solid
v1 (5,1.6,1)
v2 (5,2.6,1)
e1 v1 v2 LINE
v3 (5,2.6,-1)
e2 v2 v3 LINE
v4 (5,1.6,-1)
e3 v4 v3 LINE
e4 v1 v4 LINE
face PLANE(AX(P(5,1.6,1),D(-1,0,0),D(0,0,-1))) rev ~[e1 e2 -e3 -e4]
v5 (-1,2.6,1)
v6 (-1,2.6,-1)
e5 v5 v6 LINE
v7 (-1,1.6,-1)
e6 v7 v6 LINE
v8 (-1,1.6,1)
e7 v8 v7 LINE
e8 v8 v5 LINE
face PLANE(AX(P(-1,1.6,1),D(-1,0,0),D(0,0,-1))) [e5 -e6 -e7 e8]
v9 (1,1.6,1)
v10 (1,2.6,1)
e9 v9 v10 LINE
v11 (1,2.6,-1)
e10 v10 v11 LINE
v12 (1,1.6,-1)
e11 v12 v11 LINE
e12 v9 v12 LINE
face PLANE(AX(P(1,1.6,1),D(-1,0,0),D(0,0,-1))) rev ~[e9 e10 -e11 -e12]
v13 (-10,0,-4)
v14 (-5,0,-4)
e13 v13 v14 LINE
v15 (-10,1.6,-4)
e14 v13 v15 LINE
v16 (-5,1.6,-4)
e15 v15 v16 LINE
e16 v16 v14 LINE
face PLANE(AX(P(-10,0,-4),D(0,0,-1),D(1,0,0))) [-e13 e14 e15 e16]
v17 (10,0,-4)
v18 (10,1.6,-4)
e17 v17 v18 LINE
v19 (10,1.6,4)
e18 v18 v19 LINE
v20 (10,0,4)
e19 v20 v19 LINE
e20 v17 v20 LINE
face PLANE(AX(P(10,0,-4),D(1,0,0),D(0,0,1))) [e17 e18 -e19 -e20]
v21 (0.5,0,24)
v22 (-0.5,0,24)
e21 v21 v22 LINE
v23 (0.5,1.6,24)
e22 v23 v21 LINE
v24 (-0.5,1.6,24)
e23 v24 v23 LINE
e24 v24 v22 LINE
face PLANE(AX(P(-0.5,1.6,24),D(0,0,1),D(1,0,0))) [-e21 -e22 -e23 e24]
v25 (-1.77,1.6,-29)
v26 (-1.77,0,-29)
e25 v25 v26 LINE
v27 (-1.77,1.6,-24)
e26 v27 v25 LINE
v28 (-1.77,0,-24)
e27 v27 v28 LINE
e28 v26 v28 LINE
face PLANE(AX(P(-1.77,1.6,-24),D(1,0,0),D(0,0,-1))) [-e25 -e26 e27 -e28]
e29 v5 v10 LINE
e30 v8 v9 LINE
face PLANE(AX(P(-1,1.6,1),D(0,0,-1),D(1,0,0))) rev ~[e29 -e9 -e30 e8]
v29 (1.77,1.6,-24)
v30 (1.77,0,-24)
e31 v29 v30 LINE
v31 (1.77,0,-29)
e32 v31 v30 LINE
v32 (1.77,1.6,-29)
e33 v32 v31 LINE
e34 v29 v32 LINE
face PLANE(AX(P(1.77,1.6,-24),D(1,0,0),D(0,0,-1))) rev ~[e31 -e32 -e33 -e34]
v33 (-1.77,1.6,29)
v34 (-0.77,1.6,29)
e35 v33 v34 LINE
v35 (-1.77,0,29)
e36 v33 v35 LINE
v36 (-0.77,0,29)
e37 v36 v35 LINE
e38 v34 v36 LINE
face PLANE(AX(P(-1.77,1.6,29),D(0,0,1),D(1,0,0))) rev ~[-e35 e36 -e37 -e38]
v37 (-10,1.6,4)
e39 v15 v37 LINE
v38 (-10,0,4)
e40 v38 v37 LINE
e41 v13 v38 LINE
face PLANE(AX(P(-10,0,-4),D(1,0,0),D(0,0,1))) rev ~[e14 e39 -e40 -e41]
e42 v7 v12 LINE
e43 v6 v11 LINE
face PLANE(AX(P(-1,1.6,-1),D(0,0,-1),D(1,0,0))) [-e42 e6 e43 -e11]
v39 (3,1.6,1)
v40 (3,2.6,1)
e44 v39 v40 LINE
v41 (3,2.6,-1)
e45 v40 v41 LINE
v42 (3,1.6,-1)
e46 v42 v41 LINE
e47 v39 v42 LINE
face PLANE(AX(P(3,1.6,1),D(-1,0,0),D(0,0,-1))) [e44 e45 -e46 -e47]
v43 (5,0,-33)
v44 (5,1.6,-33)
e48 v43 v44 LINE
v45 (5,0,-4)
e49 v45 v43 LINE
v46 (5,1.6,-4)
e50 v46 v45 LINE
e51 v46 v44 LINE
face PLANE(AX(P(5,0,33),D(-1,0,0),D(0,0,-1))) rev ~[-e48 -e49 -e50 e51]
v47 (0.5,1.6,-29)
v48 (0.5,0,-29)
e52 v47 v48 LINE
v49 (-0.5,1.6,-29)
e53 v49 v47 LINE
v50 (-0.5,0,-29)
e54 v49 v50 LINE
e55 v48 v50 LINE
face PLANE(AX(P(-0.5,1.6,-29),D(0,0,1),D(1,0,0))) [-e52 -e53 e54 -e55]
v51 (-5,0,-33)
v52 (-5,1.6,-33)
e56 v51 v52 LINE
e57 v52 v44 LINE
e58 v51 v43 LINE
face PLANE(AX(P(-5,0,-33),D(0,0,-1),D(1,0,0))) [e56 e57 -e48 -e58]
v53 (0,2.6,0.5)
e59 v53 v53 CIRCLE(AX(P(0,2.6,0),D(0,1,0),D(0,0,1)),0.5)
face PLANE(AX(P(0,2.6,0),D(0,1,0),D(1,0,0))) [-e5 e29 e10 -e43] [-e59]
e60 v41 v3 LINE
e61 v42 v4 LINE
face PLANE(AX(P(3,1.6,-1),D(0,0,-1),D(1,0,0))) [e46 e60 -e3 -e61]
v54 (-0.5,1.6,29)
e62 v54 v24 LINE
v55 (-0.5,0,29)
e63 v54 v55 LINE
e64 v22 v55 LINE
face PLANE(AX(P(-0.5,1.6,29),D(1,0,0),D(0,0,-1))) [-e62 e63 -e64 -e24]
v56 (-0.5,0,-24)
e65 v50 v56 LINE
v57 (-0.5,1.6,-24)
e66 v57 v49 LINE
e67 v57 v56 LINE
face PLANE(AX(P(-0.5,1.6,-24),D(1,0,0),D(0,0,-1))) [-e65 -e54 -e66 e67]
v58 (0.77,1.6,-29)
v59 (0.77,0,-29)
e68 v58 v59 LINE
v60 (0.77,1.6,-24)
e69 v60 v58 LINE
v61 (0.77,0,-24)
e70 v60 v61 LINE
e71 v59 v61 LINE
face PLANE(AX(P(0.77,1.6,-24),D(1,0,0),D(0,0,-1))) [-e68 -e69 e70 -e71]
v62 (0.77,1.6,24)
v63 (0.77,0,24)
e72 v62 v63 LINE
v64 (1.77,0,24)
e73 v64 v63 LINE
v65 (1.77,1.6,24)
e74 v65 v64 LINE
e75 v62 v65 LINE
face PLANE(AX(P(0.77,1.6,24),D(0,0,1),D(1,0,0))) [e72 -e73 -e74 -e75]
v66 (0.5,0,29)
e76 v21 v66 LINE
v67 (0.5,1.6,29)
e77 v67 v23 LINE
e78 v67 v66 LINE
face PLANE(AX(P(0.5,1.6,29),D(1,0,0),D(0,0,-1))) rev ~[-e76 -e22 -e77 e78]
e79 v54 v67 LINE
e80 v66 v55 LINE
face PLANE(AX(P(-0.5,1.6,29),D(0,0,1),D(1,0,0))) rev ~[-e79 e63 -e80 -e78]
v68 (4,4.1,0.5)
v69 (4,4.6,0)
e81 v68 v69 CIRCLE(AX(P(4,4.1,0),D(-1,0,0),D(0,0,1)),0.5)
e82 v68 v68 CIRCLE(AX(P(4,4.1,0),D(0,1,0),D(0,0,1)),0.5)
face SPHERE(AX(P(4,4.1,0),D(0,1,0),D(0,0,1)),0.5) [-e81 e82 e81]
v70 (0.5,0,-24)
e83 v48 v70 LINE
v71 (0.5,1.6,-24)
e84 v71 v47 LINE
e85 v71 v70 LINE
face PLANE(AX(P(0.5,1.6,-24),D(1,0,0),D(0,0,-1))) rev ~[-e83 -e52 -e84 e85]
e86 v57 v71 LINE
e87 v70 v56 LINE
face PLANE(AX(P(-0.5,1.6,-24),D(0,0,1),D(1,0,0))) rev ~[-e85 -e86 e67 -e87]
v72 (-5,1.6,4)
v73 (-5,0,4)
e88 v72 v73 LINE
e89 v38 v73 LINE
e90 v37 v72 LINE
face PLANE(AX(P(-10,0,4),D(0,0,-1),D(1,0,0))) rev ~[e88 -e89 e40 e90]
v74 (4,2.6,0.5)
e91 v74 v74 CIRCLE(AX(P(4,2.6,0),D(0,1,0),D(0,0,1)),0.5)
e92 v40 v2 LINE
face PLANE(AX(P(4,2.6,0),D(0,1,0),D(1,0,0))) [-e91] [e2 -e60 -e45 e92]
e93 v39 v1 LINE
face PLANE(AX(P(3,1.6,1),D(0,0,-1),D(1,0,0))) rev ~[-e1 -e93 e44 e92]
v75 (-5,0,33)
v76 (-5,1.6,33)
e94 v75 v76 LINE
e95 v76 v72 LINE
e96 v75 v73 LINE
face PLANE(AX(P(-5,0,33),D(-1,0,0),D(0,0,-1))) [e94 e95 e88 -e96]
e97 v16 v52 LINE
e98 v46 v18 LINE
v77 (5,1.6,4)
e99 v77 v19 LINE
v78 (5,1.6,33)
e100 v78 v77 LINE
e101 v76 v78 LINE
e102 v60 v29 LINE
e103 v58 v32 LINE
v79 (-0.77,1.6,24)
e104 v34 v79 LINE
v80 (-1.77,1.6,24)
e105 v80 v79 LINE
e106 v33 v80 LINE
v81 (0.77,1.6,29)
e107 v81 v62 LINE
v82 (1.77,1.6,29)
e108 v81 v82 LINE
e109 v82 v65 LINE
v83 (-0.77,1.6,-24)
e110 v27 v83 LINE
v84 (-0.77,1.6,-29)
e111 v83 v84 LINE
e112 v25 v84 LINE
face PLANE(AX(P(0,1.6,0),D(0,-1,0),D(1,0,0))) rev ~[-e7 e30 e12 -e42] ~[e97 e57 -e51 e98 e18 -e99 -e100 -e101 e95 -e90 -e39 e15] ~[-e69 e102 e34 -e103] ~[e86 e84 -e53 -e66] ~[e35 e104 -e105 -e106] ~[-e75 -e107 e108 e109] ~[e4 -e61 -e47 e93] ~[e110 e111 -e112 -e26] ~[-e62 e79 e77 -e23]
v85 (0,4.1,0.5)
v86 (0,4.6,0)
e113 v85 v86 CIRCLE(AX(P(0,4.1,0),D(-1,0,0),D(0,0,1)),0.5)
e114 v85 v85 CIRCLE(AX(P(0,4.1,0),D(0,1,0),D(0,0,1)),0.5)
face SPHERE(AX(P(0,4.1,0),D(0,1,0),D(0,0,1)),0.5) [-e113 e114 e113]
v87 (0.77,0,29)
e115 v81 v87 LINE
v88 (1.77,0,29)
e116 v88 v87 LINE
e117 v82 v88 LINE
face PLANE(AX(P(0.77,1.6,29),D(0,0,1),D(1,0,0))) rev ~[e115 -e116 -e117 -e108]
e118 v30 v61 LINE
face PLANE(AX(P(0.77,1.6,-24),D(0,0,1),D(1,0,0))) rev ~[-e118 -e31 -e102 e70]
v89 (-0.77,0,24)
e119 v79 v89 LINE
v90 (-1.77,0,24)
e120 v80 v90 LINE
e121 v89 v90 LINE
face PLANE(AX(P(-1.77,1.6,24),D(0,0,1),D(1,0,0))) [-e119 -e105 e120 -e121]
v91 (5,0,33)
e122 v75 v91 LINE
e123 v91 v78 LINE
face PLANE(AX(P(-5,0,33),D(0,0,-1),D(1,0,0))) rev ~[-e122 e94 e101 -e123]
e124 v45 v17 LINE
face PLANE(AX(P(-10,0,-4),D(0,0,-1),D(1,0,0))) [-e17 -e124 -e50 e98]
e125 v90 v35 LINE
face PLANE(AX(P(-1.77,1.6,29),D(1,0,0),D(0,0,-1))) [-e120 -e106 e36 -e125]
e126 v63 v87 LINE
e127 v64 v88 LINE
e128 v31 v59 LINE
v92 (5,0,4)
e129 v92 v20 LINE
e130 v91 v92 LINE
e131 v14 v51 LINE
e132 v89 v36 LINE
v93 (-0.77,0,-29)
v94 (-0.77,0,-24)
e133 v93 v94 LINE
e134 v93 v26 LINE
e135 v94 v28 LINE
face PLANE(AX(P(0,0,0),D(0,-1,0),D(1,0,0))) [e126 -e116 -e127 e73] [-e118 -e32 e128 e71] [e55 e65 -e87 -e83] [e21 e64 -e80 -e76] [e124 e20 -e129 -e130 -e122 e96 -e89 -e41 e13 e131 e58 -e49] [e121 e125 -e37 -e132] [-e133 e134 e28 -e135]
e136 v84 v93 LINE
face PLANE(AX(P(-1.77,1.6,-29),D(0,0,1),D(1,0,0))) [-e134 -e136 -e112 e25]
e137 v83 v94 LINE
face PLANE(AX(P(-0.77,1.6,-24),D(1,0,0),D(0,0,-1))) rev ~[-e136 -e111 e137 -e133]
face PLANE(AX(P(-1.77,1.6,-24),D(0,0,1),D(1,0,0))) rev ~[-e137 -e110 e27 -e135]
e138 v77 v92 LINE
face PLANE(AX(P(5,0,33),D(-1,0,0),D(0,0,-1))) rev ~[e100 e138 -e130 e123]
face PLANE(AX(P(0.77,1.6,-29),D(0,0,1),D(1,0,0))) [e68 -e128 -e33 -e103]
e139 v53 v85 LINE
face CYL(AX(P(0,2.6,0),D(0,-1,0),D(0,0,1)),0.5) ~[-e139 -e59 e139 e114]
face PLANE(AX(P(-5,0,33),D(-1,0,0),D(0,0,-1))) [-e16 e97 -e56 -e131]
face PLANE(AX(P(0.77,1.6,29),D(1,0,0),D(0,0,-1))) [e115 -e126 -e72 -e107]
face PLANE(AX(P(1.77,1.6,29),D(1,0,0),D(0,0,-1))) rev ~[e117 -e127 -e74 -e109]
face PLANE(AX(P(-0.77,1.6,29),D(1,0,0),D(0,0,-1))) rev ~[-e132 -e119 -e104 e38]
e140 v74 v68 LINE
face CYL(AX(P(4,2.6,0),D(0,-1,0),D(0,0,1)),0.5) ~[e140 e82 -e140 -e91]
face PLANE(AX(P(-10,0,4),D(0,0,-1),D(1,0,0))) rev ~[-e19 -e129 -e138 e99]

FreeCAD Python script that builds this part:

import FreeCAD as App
import Part
import Sketcher
from FreeCAD import Vector


def edges_at(feature, points):
    """Names of the edges that pass closest to the given points."""
    edges = feature.Shape.Edges
    near = lambda p: min(range(len(edges)), key=lambda i: edges[i].distToShape(Part.Vertex(*p))[0])
    return sorted({f"Edge{near(p) + 1}" for p in points})


def add_polygon(sketch, points):
    """Adds a closed chain of lines whose ends are joined by coincident constraints."""
    first, n = sketch.GeometryCount, len(points)
    for a, b in zip(points, points[1:] + points[:1]):
        sketch.addGeometry(Part.LineSegment(App.Vector(*a, 0), App.Vector(*b, 0)), False)
    for i in range(n):
        sketch.addConstraint(Sketcher.Constraint("Coincident", first + i, 2, first + (i + 1) % n, 1))

doc = App.newDocument("Part")
body = doc.addObject("PartDesign::Body", "Body")

# Sketch on XZ plane
sketch1 = body.newObject("Sketcher::SketchObject", "Sketch")
sketch1.AttachmentSupport = (doc.getObject("XZ_Plane"), [""])
sketch1.MapMode = "FlatFace"
add_polygon(sketch1, [(-5, -33), (-5, 33), (5, 33), (5, -33)])  # lines 0-3
sketch1.addConstraint([
    Sketcher.Constraint("Vertical", 0),
    Sketcher.Constraint("Horizontal", 1),
    Sketcher.Constraint("Vertical", 2),
    Sketcher.Constraint("Horizontal", 3),
    Sketcher.Constraint("Symmetric", 0, 2, 2, 2, -1, 1),
    Sketcher.Constraint("DistanceX", 1, 1, 1, 2, 10.0),
    Sketcher.Constraint("DistanceY", 0, 1, 0, 2, 66.0),
])
pad1 = body.newObject("PartDesign::Pad", "Pad")
pad1.Profile = sketch1
pad1.Length = 1.6
pad1.Reversed = True

# Sketch on XZ plane
sketch2 = body.newObject("Sketcher::SketchObject", "Sketch001")
sketch2.AttachmentSupport = (doc.getObject("XZ_Plane"), [""])
sketch2.MapMode = "FlatFace"
sketch2.AttachmentOffset = App.Placement(Vector(0, 0, -1.6), App.Rotation())
add_polygon(sketch2, [(0.77, -29), (0.77, -24), (1.77, -24), (1.77, -29)])  # lines 0-3
sketch2.addConstraint([
    Sketcher.Constraint("Vertical", 0),
    Sketcher.Constraint("Horizontal", 1),
    Sketcher.Constraint("Vertical", 2),
    Sketcher.Constraint("Horizontal", 3),
    Sketcher.Constraint("DistanceX", 1, 1, 1, 2, 1.0),
    Sketcher.Constraint("DistanceY", 0, 1, 0, 2, 5.0),
    Sketcher.Constraint("DistanceY", 0, 2, -1, 1, 24.0),
    Sketcher.Constraint("DistanceX", -1, 1, 0, 2, 0.77),
])
pocket1 = body.newObject("PartDesign::Pocket", "Pocket")
pocket1.Profile = sketch2
pocket1.Type = "UpToFirst"
pocket1.Reversed = True

# Sketch on XZ plane
sketch3 = body.newObject("Sketcher::SketchObject", "Sketch002")
sketch3.AttachmentSupport = (doc.getObject("XZ_Plane"), [""])
sketch3.MapMode = "FlatFace"
sketch3.AttachmentOffset = App.Placement(Vector(0, 0, -1.6), App.Rotation())
add_polygon(sketch3, [(-0.5, -29), (-0.5, -24), (0.5, -24), (0.5, -29)])  # lines 0-3
sketch3.addConstraint([
    Sketcher.Constraint("Vertical", 0),
    Sketcher.Constraint("Horizontal", 1),
    Sketcher.Constraint("Vertical", 2),
    Sketcher.Constraint("Horizontal", 3),
    Sketcher.Constraint("DistanceX", 1, 1, 1, 2, 1.0),
    Sketcher.Constraint("DistanceY", 0, 1, 0, 2, 5.0),
    Sketcher.Constraint("DistanceY", 0, 2, -1, 1, 24.0),
    Sketcher.Constraint("DistanceX", 0, 2, -1, 1, 0.5),
])
pocket2 = body.newObject("PartDesign::Pocket", "Pocket001")
pocket2.Profile = sketch3
pocket2.Type = "UpToFirst"
pocket2.Reversed = True

# Sketch on XZ plane
sketch4 = body.newObject("Sketcher::SketchObject", "Sketch003")
sketch4.AttachmentSupport = (doc.getObject("XZ_Plane"), [""])
sketch4.MapMode = "FlatFace"
sketch4.AttachmentOffset = App.Placement(Vector(0, 0, -1.6), App.Rotation())
add_polygon(sketch4, [(-1.77, -29), (-1.77, -24), (-0.77, -24), (-0.77, -29)])  # lines 0-3
sketch4.addConstraint([
    Sketcher.Constraint("Vertical", 0),
    Sketcher.Constraint("Horizontal", 1),
    Sketcher.Constraint("Vertical", 2),
    Sketcher.Constraint("Horizontal", 3),
    Sketcher.Constraint("DistanceX", 1, 1, 1, 2, 1.0),
    Sketcher.Constraint("DistanceY", 0, 1, 0, 2, 5.0),
    Sketcher.Constraint("DistanceY", 0, 2, -1, 1, 24.0),
    Sketcher.Constraint("DistanceX", 0, 2, -1, 1, 1.77),
])
pocket3 = body.newObject("PartDesign::Pocket", "Pocket002")
pocket3.Profile = sketch4
pocket3.Type = "UpToFirst"
pocket3.Reversed = True

# Sketch on XZ plane
sketch5 = body.newObject("Sketcher::SketchObject", "Sketch004")
sketch5.AttachmentSupport = (doc.getObject("XZ_Plane"), [""])
sketch5.MapMode = "FlatFace"
sketch5.AttachmentOffset = App.Placement(Vector(0, 0, -1.6), App.Rotation())
add_polygon(sketch5, [(-1.77, 24), (-1.77, 29), (-0.77, 29), (-0.77, 24)])  # lines 0-3
sketch5.addConstraint([
    Sketcher.Constraint("Vertical", 0),
    Sketcher.Constraint("Horizontal", 1),
    Sketcher.Constraint("Vertical", 2),
    Sketcher.Constraint("Horizontal", 3),
    Sketcher.Constraint("DistanceX", 1, 1, 1, 2, 1.0),
    Sketcher.Constraint("DistanceY", 0, 1, 0, 2, 5.0),
    Sketcher.Constraint("DistanceY", -1, 1, 0, 2, 29.0),
    Sketcher.Constraint("DistanceX", 0, 2, -1, 1, 1.77),
])
pocket4 = body.newObject("PartDesign::Pocket", "Pocket003")
pocket4.Profile = sketch5
pocket4.Type = "UpToFirst"
pocket4.Reversed = True

# Sketch on XZ plane
sketch6 = body.newObject("Sketcher::SketchObject", "Sketch005")
sketch6.AttachmentSupport = (doc.getObject("XZ_Plane"), [""])
sketch6.MapMode = "FlatFace"
sketch6.AttachmentOffset = App.Placement(Vector(0, 0, -1.6), App.Rotation())
add_polygon(sketch6, [(0.77, 24), (0.77, 29), (1.77, 29), (1.77, 24)])  # lines 0-3
sketch6.addConstraint([
    Sketcher.Constraint("Vertical", 0),
    Sketcher.Constraint("Horizontal", 1),
    Sketcher.Constraint("Vertical", 2),
    Sketcher.Constraint("Horizontal", 3),
    Sketcher.Constraint("DistanceX", 1, 1, 1, 2, 1.0),
    Sketcher.Constraint("DistanceY", 0, 1, 0, 2, 5.0),
    Sketcher.Constraint("DistanceY", -1, 1, 0, 2, 29.0),
    Sketcher.Constraint("DistanceX", -1, 1, 0, 2, 0.77),
])
pocket5 = body.newObject("PartDesign::Pocket", "Pocket004")
pocket5.Profile = sketch6
pocket5.Type = "UpToFirst"
pocket5.Reversed = True

# Sketch on XZ plane
sketch7 = body.newObject("Sketcher::SketchObject", "Sketch006")
sketch7.AttachmentSupport = (doc.getObject("XZ_Plane"), [""])
sketch7.MapMode = "FlatFace"
sketch7.AttachmentOffset = App.Placement(Vector(0, 0, -1.6), App.Rotation())
add_polygon(sketch7, [(-0.5, 24), (-0.5, 29), (0.5, 29), (0.5, 24)])  # lines 0-3
sketch7.addConstraint([
    Sketcher.Constraint("Vertical", 0),
    Sketcher.Constraint("Horizontal", 1),
    Sketcher.Constraint("Vertical", 2),
    Sketcher.Constraint("Horizontal", 3),
    Sketcher.Constraint("DistanceX", 1, 1, 1, 2, 1.0),
    Sketcher.Constraint("DistanceY", 0, 1, 0, 2, 5.0),
    Sketcher.Constraint("DistanceY", -1, 1, 0, 2, 29.0),
    Sketcher.Constraint("DistanceX", 0, 2, -1, 1, 0.5),
])
pocket6 = body.newObject("PartDesign::Pocket", "Pocket005")
pocket6.Profile = sketch7
pocket6.Type = "UpToFirst"
pocket6.Reversed = True

# Sketch on XZ plane
sketch8 = body.newObject("Sketcher::SketchObject", "Sketch007")
sketch8.AttachmentSupport = (doc.getObject("XZ_Plane"), [""])
sketch8.MapMode = "FlatFace"
add_polygon(sketch8, [(-10, 4), (-10, -4), (10, -4), (10, 4)])  # lines 0-3
sketch8.addConstraint([
    Sketcher.Constraint("Vertical", 0),
    Sketcher.Constraint("Horizontal", 1),
    Sketcher.Constraint("Vertical", 2),
    Sketcher.Constraint("Horizontal", 3),
    Sketcher.Constraint("Symmetric", 0, 2, 2, 2, -1, 1),
    Sketcher.Constraint("DistanceX", 1, 1, 1, 2, 20.0),
    Sketcher.Constraint("DistanceY", 0, 2, 0, 1, 8.0),
])
pad2 = body.newObject("PartDesign::Pad", "Pad001")
pad2.Profile = sketch8
pad2.Length = 1.6
pad2.Reversed = True

# Sketch on XZ plane
sketch9 = body.newObject("Sketcher::SketchObject", "Sketch008")
sketch9.AttachmentSupport = (doc.getObject("XZ_Plane"), [""])
sketch9.MapMode = "FlatFace"
sketch9.AttachmentOffset = App.Placement(Vector(0, 0, -1.6), App.Rotation())
add_polygon(sketch9, [(-1, -1), (-1, 1), (1, 1), (1, -1)])  # lines 0-3
add_polygon(sketch9, [(3, -1), (3, 1), (5, 1), (5, -1)])  # lines 4-7
sketch9.addConstraint([
    Sketcher.Constraint("Vertical", 0),
    Sketcher.Constraint("Horizontal", 1),
    Sketcher.Constraint("Vertical", 2),
    Sketcher.Constraint("Horizontal", 3),
    Sketcher.Constraint("Vertical", 4),
    Sketcher.Constraint("Horizontal", 5),
    Sketcher.Constraint("Vertical", 6),
    Sketcher.Constraint("Horizontal", 7),
    Sketcher.Constraint("Symmetric", 0, 2, 2, 2, -1, 1),
    Sketcher.Constraint("Horizontal", 1, 2, 4, 2),
    Sketcher.Constraint("Horizontal", 3, 2, 6, 2),
    Sketcher.Constraint("Equal", 3, 5),
    Sketcher.Constraint("Equal", 7, 0),
    Sketcher.Constraint("DistanceX", 1, 1, 1, 2, 2.0),
    Sketcher.Constraint("DistanceX", -1, 1, 4, 2, 3.0),
])
pad3 = body.newObject("PartDesign::Pad", "Pad002")
pad3.Profile = sketch9
pad3.Length = 1
pad3.Reversed = True

# Sketch on XZ plane
sketch10 = body.newObject("Sketcher::SketchObject", "Sketch009")
sketch10.AttachmentSupport = (doc.getObject("XZ_Plane"), [""])
sketch10.MapMode = "FlatFace"
sketch10.AttachmentOffset = App.Placement(Vector(0, 0, -2.6), App.Rotation())
sketch10.addGeometry([
    Part.Circle(Vector(0, 0, 0), Vector(0, 0, 1), 0.5),
    Part.Circle(Vector(4, 0, 0), Vector(0, 0, 1), 0.5),
], False)
sketch10.addConstraint([
    Sketcher.Constraint("Coincident", 0, 3, -1, 1),
    Sketcher.Constraint("Equal", 0, 1),
    Sketcher.Constraint("PointOnObject", 1, 3, -1),
    Sketcher.Constraint("Diameter", 0, 1.0),
    Sketcher.Constraint("DistanceX", -1, 1, 1, 3, 4.0),
])
pad4 = body.newObject("PartDesign::Pad", "Pad003")
pad4.Profile = sketch10
pad4.Length = 2
pad4.Reversed = True
doc.recompute()

fillet = body.newObject("PartDesign::Fillet", "Fillet")
fillet.Base = (pad4, edges_at(pad4, [(0, 4.6, -0.5), (4, 4.6, -0.5)]))
fillet.Radius = 0.5

doc.recompute()
